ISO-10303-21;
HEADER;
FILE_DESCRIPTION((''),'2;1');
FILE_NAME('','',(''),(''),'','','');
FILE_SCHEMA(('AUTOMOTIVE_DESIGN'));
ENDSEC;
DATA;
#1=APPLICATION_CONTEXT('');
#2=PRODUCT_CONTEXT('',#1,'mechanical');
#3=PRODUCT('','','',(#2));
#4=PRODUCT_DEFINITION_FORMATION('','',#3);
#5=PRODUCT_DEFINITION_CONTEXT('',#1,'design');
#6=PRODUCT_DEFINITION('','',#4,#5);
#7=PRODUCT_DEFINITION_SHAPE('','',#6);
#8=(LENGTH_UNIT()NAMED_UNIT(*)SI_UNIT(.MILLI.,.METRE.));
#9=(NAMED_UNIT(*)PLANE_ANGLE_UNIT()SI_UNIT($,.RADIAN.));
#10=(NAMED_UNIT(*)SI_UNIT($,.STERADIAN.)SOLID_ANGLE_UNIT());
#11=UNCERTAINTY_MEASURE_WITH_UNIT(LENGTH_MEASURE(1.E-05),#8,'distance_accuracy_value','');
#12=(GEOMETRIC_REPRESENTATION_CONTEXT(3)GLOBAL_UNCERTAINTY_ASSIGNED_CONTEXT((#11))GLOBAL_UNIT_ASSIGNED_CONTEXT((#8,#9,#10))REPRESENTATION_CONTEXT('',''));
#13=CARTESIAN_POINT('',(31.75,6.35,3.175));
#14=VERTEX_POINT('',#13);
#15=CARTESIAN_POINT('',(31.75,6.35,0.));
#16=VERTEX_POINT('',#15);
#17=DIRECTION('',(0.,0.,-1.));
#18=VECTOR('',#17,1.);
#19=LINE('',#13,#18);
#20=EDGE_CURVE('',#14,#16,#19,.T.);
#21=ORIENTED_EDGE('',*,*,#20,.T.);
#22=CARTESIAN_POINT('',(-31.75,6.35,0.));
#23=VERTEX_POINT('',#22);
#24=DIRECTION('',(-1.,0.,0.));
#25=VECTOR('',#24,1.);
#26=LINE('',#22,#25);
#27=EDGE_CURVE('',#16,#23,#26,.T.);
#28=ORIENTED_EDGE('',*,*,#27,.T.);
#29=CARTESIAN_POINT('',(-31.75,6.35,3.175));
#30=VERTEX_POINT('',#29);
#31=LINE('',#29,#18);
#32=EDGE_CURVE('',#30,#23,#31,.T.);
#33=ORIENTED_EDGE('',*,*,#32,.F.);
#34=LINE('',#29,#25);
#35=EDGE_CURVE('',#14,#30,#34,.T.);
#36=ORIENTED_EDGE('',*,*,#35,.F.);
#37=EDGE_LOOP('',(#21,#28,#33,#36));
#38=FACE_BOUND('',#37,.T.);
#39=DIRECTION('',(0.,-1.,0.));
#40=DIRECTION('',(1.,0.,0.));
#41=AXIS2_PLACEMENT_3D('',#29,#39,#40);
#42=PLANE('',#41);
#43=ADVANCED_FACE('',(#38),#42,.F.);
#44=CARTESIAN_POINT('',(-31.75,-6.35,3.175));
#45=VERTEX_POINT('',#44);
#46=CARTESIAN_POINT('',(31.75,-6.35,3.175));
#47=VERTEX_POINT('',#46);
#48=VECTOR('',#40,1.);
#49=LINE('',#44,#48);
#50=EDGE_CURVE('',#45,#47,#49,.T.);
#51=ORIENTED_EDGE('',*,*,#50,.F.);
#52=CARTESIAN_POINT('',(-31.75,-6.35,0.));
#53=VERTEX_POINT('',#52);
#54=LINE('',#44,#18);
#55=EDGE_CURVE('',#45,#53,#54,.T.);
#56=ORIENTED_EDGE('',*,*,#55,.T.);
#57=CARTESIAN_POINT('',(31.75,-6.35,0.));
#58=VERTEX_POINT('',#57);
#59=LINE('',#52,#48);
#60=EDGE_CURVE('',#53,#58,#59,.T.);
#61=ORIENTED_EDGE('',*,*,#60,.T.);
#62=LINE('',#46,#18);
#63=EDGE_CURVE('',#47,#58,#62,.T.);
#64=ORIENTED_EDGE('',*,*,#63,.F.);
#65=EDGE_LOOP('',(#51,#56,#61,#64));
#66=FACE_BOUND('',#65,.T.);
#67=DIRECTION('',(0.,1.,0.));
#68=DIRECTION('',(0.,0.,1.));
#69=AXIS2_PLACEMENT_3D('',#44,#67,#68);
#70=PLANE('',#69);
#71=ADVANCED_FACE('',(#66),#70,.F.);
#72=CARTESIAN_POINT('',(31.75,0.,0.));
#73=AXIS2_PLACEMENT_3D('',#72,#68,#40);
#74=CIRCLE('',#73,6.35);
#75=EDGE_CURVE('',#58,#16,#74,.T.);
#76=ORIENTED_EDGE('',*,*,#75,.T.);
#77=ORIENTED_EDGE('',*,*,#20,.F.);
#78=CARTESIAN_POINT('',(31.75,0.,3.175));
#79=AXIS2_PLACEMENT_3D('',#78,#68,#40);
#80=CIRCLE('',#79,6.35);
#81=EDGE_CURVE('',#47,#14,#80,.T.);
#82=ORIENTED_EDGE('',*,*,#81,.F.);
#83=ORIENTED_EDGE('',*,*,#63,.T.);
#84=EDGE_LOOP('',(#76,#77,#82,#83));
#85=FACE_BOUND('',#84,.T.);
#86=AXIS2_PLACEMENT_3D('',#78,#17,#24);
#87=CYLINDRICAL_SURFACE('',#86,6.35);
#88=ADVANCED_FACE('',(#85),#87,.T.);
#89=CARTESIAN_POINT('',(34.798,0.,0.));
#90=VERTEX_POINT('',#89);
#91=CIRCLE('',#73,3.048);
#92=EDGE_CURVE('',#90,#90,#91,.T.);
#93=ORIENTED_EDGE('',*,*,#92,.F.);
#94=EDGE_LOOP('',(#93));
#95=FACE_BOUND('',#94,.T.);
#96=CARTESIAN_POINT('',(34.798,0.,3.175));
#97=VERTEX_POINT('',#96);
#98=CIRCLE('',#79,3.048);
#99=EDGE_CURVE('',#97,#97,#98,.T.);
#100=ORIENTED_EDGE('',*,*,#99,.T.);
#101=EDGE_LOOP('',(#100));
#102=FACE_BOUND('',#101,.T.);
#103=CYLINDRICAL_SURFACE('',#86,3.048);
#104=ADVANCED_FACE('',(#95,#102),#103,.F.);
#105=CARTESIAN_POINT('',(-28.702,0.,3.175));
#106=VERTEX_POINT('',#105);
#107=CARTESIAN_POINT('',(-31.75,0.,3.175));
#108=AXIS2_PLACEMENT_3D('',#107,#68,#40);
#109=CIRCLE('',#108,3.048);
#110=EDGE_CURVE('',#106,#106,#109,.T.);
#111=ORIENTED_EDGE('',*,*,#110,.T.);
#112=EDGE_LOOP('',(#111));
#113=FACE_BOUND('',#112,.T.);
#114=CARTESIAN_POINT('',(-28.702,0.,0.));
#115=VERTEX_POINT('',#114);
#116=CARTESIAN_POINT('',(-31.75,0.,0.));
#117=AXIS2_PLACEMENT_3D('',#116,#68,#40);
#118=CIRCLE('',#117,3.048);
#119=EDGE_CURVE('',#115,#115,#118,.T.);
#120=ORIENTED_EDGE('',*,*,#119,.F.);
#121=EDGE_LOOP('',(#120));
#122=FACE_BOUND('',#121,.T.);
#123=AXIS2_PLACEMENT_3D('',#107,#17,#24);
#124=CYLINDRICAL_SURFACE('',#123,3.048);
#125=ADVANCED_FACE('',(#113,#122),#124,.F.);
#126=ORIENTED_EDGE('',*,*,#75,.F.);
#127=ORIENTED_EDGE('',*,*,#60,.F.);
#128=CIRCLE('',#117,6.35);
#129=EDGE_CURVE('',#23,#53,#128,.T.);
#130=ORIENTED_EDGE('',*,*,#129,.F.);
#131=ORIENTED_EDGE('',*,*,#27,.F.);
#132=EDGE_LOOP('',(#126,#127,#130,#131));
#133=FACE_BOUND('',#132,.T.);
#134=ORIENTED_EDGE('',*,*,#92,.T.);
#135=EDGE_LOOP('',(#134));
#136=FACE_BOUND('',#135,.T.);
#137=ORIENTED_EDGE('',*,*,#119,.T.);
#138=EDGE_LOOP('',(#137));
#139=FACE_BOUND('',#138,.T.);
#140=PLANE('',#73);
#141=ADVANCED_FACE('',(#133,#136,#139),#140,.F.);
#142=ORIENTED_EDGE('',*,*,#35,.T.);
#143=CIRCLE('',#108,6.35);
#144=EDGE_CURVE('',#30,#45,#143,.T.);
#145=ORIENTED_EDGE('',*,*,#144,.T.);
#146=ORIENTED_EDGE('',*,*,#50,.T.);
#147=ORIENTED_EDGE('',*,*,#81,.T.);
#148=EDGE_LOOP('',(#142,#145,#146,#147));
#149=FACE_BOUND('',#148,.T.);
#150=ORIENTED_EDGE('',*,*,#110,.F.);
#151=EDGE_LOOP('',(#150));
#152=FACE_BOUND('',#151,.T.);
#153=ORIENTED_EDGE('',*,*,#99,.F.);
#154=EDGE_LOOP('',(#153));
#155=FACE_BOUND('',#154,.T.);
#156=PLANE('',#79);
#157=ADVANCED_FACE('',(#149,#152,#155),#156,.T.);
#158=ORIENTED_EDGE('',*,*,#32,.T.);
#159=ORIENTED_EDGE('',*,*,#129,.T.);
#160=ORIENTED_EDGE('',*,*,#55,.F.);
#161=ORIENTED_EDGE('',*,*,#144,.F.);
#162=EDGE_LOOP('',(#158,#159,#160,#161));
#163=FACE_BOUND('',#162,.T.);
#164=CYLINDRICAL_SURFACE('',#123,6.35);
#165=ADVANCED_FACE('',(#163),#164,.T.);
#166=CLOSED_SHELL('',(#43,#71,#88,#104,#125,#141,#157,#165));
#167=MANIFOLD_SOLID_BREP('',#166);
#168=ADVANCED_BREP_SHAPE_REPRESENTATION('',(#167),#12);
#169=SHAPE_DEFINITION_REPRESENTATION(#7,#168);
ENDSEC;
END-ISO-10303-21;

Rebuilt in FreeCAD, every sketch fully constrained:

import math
import FreeCAD as App
import Part
import Sketcher
from FreeCAD import Vector
Q = App.Units.Quantity

doc = App.newDocument("Part")
body = doc.addObject("PartDesign::Body", "Body")

sketch1 = body.newObject("Sketcher::SketchObject", "Sketch")
sketch1.AttachmentSupport = (doc.getObject("XY_Plane"), [""])
sketch1.MapMode = "FlatFace"
sketch1.addGeometry([
    Part.LineSegment(Vector(-31.8, -6.3, 0), Vector(31.8, -6.3, 0)),
    Part.ArcOfCircle(Part.Circle(Vector(31.8, 0, 0), Vector(0, 0, 1), 6.3), math.radians(-90), math.radians(90)),
    Part.LineSegment(Vector(31.8, 6.3, 0), Vector(-31.8, 6.3, 0)),
    Part.ArcOfCircle(Part.Circle(Vector(-31.8, 0, 0), Vector(0, 0, 1), 6.3), math.radians(90), math.radians(270)),
    Part.Circle(Vector(-31.8, 0, 0), Vector(0, 0, 1), 3),
    Part.Circle(Vector(31.8, 0, 0), Vector(0, 0, 1), 3),
], False)
sketch1.addConstraint([
    Sketcher.Constraint("Tangent", 0, 2, 1, 1),
    Sketcher.Constraint("Tangent", 1, 2, 2, 1),
    Sketcher.Constraint("Tangent", 2, 2, 3, 1),
    Sketcher.Constraint("Tangent", 3, 2, 0, 1),
    Sketcher.Constraint("Horizontal", 0),
    Sketcher.Constraint("Horizontal", 2),
    Sketcher.Constraint("Coincident", 4, 3, 3, 3),
    Sketcher.Constraint("Coincident", 5, 3, 1, 3),
    Sketcher.Constraint("Equal", 4, 5),
    Sketcher.Constraint("Symmetric", 1, 3, 3, 3, -1, 1),
    Sketcher.Constraint("Diameter", 4, Q("0.24 in")),
    Sketcher.Constraint("Radius", 1, Q("0.25 in")),
    Sketcher.Constraint("DistanceX", 0, 1, 0, 2, Q("2.5 in")),
])
pad1 = body.newObject("PartDesign::Pad", "Pad")
pad1.Profile = sketch1
pad1.Length = Q("0.125 in")

doc.recompute()
